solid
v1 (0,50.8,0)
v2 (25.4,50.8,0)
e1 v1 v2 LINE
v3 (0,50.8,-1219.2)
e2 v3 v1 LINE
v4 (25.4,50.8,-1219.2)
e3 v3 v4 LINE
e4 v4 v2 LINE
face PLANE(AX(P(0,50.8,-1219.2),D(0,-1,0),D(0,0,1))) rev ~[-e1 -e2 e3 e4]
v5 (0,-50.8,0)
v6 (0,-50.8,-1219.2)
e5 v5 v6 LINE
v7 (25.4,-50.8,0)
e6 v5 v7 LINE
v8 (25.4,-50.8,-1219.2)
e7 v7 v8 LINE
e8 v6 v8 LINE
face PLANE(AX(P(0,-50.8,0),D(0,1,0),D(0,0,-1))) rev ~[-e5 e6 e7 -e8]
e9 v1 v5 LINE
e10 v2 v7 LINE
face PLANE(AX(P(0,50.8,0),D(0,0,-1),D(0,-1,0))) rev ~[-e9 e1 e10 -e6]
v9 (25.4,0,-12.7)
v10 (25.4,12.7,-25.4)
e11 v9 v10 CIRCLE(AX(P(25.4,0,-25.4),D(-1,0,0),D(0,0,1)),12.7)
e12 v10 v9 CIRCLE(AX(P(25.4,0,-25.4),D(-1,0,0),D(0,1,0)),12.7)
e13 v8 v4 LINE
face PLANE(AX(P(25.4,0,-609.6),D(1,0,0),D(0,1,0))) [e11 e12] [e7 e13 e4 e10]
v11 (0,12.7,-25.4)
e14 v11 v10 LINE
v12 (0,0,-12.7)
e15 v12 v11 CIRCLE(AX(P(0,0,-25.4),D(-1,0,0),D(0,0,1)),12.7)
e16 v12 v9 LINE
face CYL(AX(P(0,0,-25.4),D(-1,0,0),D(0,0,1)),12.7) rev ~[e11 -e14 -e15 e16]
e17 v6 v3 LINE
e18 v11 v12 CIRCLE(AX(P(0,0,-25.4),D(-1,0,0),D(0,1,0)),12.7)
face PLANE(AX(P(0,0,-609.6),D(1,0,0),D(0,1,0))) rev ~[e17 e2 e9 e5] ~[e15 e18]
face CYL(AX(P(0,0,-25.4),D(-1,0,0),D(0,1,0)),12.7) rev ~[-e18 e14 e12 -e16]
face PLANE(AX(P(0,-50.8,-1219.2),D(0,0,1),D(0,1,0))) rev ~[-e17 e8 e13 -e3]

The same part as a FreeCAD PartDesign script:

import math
import FreeCAD as App
import Part
import Sketcher

V = App.Vector
Q = App.Units.Quantity

doc = App.newDocument("Part")
params = doc.addObject("Spreadsheet::Sheet", "Params")
for row, (alias, value) in enumerate([
    ("sketch1_radius", "0.5 in"),
    ("sketch1_width", "4 in"),
    ("sketch1_height", "48 in"),
    ("pad1_length", "1 in"),
], start=1):
    params.set(f"A{row}", alias)
    params.set(f"B{row}", "=" + value)
    params.setAlias(f"B{row}", alias)

body = doc.addObject("PartDesign::Body", "Body")

sketch1 = body.newObject("Sketcher::SketchObject", "Sketch")
sketch1.AttachmentSupport = (doc.getObject("YZ_Plane"), [""])
sketch1.MapMode = "FlatFace"
sketch1.addGeometry([
    Part.LineSegment(V(51, 0, 0), V(-51, 0, 0)),
    Part.LineSegment(V(-51, 0, 0), V(-51, -1219, 0)),
    Part.LineSegment(V(-51, -1219, 0), V(51, -1219, 0)),
    Part.LineSegment(V(51, -1219, 0), V(51, 0, 0)),
    Part.ArcOfCircle(Part.Circle(V(0, -25, 0), V(0, 0, 1), 13), math.radians(0), math.radians(90)),
    Part.ArcOfCircle(Part.Circle(V(0, -25, 0), V(0, 0, 1), 13), math.radians(90), math.radians(360)),
], False)
sketch1.addConstraint([
    Sketcher.Constraint("Coincident", 0, 2, 1, 1),
    Sketcher.Constraint("Coincident", 1, 2, 2, 1),
    Sketcher.Constraint("Coincident", 2, 2, 3, 1),
    Sketcher.Constraint("Coincident", 3, 2, 0, 1),
    Sketcher.Constraint("Tangent", 4, 1, 5, 2),
    Sketcher.Constraint("Coincident", 5, 1, 4, 2),
    Sketcher.Constraint("Horizontal", 0),
    Sketcher.Constraint("Vertical", 1),
    Sketcher.Constraint("Horizontal", 2),
    Sketcher.Constraint("Vertical", 3),
    Sketcher.Constraint("Symmetric", 0, 2, 3, 2, -1, 1),
    Sketcher.Constraint("PointOnObject", 4, 3, -2),
    Sketcher.Constraint("PointOnObject", 5, 1, -2),
    Sketcher.Constraint("Horizontal", 5, 3, 4, 1),
    Sketcher.Constraint("Radius", 4, Q("0.5 in")),
    Sketcher.Constraint("DistanceX", 0, 2, 0, 1, Q("4 in")),
    Sketcher.Constraint("DistanceY", 1, 2, 1, 1, Q("48 in")),
    Sketcher.Constraint("DistanceY", 4, 3, -1, 1, Q("1 in")),
])
sketch1.setExpression("Constraints[14]", "Params.sketch1_radius")
sketch1.setExpression("Constraints[15]", "Params.sketch1_width")
sketch1.setExpression("Constraints[16]", "Params.sketch1_height")
pad1 = body.newObject("PartDesign::Pad", "Pad")
pad1.Profile = sketch1
pad1.setExpression("Length", "Params.pad1_length")

doc.recompute()
